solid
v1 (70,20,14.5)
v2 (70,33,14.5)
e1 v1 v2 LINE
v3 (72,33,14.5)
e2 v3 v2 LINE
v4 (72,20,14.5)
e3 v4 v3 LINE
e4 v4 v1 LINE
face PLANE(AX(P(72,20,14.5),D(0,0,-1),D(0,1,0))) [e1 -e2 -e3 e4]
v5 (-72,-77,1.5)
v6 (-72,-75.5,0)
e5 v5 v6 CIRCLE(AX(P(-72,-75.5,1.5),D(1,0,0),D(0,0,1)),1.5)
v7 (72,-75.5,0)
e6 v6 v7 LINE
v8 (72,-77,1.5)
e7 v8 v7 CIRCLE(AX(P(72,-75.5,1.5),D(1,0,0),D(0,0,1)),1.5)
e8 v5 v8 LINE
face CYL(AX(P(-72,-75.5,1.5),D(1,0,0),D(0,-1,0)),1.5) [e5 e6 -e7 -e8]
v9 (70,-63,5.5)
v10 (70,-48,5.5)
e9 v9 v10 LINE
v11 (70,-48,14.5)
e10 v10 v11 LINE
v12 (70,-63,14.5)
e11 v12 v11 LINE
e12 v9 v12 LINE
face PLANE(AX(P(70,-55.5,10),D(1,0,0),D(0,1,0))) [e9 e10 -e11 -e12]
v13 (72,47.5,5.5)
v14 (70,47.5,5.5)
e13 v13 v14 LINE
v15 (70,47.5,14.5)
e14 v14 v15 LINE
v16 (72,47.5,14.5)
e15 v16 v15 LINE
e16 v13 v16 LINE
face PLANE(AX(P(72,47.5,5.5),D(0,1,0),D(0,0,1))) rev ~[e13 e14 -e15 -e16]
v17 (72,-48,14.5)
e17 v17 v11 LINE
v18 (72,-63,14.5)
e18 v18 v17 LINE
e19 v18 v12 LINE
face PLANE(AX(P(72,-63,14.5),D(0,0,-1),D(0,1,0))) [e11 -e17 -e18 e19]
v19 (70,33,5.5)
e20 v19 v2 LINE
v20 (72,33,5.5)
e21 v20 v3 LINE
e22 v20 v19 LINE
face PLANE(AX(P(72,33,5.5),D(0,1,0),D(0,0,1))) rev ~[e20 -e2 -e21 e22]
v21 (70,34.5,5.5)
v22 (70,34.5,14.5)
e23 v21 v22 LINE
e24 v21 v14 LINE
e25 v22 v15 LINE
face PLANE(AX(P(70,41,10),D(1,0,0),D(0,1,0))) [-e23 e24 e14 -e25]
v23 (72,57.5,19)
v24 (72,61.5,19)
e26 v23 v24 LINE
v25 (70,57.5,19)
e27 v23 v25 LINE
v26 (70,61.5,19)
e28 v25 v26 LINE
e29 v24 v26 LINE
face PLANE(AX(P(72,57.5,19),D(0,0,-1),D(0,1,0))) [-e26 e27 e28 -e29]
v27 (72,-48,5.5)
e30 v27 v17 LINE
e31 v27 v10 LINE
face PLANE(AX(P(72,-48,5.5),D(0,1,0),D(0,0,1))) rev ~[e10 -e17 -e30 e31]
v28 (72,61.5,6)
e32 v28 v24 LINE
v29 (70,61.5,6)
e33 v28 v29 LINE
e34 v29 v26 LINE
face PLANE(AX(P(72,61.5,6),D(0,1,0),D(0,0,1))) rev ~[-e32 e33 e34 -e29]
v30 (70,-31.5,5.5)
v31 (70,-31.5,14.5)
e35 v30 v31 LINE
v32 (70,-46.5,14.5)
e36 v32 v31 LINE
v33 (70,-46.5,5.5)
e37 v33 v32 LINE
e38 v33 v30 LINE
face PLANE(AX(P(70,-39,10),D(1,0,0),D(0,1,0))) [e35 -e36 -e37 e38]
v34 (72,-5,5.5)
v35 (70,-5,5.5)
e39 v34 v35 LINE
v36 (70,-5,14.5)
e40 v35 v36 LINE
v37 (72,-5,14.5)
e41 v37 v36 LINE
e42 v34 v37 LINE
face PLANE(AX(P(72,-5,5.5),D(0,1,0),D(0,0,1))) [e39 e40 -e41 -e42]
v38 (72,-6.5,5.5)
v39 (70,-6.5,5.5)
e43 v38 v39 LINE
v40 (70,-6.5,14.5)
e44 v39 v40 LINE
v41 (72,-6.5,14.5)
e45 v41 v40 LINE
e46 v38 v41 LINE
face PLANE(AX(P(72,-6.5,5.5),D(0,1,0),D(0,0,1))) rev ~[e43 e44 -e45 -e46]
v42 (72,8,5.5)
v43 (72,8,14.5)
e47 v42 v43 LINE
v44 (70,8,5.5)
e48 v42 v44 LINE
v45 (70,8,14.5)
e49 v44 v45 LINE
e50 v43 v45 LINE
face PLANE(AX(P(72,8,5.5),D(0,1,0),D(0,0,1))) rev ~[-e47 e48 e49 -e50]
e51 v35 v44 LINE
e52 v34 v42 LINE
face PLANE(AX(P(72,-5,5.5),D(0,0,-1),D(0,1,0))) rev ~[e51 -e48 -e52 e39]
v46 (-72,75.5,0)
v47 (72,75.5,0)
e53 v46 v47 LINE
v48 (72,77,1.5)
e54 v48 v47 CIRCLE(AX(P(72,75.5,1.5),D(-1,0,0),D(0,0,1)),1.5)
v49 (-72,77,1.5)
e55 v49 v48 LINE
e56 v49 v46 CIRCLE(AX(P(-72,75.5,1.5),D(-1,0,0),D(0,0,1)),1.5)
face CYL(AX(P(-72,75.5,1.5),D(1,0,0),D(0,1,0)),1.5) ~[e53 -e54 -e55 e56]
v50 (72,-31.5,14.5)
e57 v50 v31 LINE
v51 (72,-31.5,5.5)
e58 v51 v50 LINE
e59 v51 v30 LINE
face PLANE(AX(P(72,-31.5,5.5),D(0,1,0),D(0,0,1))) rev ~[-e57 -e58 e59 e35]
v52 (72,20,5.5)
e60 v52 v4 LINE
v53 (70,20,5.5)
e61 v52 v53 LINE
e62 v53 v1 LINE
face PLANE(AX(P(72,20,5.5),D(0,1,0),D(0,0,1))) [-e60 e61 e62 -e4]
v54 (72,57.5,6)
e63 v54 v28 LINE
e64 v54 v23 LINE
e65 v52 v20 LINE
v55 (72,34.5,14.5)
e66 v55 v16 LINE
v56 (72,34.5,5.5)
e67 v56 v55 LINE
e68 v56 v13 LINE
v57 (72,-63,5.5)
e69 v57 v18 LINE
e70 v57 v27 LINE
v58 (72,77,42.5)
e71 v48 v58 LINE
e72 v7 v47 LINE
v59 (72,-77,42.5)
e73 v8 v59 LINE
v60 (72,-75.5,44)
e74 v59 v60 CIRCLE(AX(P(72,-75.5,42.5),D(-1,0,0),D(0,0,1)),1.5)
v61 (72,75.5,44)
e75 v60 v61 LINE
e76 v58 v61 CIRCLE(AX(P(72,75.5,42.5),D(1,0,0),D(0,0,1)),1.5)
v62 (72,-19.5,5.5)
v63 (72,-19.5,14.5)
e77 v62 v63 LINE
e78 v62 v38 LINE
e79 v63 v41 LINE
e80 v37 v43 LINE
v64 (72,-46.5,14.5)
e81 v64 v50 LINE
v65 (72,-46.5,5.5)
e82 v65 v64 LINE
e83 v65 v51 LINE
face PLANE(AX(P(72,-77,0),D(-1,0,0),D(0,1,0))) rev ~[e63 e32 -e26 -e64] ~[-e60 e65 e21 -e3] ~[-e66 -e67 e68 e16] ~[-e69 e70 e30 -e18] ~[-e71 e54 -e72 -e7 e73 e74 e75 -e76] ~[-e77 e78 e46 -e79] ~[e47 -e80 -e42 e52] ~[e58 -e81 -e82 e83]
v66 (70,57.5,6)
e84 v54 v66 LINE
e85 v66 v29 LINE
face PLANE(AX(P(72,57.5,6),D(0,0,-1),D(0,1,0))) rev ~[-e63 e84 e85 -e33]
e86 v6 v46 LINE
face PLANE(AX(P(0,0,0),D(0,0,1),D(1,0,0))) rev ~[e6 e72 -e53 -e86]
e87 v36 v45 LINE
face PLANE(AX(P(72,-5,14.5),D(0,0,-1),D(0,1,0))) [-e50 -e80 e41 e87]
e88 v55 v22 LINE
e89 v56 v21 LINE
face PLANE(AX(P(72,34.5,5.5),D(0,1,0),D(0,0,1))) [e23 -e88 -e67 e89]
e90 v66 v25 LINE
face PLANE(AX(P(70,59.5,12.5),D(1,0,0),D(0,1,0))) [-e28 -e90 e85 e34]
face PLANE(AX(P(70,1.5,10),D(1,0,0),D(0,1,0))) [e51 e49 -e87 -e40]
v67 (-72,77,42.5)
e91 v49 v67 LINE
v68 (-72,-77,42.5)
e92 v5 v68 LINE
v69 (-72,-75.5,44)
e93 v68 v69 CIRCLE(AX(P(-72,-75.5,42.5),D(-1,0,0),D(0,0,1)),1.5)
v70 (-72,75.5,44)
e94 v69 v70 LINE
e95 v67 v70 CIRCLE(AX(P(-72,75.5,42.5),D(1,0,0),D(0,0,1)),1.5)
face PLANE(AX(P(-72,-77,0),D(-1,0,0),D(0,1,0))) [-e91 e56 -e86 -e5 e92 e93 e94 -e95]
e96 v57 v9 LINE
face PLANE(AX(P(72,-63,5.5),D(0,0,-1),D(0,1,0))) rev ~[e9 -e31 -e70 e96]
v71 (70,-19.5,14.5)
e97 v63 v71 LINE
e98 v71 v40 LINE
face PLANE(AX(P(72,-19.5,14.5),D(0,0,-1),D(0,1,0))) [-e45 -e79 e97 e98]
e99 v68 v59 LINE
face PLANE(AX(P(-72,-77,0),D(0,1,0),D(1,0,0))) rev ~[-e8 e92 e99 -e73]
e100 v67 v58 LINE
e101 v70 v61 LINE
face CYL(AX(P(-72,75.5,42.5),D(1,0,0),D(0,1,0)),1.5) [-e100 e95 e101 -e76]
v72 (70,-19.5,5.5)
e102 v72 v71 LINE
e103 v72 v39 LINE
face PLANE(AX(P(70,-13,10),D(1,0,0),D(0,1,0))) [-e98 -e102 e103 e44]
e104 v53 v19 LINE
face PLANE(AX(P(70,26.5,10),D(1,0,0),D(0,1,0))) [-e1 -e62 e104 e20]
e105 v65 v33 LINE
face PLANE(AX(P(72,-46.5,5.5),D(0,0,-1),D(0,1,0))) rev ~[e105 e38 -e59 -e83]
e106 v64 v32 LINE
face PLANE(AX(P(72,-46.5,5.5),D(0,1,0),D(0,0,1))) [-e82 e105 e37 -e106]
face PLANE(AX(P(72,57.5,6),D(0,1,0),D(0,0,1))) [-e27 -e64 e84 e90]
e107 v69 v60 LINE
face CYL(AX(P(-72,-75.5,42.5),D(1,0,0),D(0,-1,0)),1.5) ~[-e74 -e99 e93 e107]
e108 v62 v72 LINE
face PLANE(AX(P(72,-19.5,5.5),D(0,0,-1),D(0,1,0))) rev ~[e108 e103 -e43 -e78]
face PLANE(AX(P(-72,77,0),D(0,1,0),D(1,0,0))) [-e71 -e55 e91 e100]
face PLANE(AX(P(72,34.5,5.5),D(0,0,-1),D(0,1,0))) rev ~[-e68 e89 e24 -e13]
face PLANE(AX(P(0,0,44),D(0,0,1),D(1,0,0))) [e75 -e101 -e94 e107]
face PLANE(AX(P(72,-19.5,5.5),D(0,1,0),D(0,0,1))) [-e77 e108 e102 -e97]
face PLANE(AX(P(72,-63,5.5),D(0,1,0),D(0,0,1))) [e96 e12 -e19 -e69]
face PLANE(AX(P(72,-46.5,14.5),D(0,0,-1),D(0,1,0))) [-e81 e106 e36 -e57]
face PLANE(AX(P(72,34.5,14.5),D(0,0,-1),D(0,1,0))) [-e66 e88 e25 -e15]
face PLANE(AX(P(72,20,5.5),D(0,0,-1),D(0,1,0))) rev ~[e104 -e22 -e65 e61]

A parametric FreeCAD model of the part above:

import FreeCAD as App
import Part
import Sketcher

V = App.Vector
Q = App.Units.Quantity


def edges_at(feature, points):
    """Names of the edges that pass closest to the given points."""
    edges = feature.Shape.Edges
    near = lambda p: min(range(len(edges)), key=lambda i: edges[i].distToShape(Part.Vertex(*p))[0])
    return sorted({f"Edge{near(p) + 1}" for p in points})

doc = App.newDocument("Part")
body = doc.addObject("PartDesign::Body", "Body")

sketch1 = doc.addObject("Sketcher::SketchObject", "Sketch")
body.addObject(sketch1)
sketch1.AttachmentSupport = (doc.XY_Plane, [""])
sketch1.MapMode = "FlatFace"
sketch1.addGeometry([
    Part.LineSegment(V(-72, 77, 0), V(-72, -77, 0)),
    Part.LineSegment(V(-72, -77, 0), V(72, -77, 0)),
    Part.LineSegment(V(72, -77, 0), V(72, 77, 0)),
    Part.LineSegment(V(72, 77, 0), V(-72, 77, 0)),
], False)
sketch1.addConstraint([
    Sketcher.Constraint("Coincident", 0, 2, 1, 1),
    Sketcher.Constraint("Coincident", 1, 2, 2, 1),
    Sketcher.Constraint("Coincident", 2, 2, 3, 1),
    Sketcher.Constraint("Coincident", 3, 2, 0, 1),
    Sketcher.Constraint("Vertical", 0),
    Sketcher.Constraint("Horizontal", 1),
    Sketcher.Constraint("Vertical", 2),
    Sketcher.Constraint("Horizontal", 3),
    Sketcher.Constraint("Symmetric", 0, 2, 2, 2, -1, 1),
    Sketcher.Constraint("DistanceX", 1, 1, 1, 2, Q("144 mm")),
    Sketcher.Constraint("DistanceY", 0, 2, 0, 1, Q("154 mm")),
])
pad1 = doc.addObject("PartDesign::Pad", "Pad")
body.addObject(pad1)
pad1.Profile = sketch1
pad1.Length = 44

sketch2 = doc.addObject("Sketcher::SketchObject", "Sketch001")
body.addObject(sketch2)
sketch2.AttachmentSupport = (doc.YZ_Plane, [""])
sketch2.MapMode = "FlatFace"
sketch2.AttachmentOffset = App.Placement(V(0, 0, 72), App.Rotation())
sketch2.addGeometry([
    Part.LineSegment(V(-63, 14.5, 0), V(-63, 5.5, 0)),
    Part.LineSegment(V(-63, 5.5, 0), V(-48, 5.5, 0)),
    Part.LineSegment(V(-48, 5.5, 0), V(-48, 14.5, 0)),
    Part.LineSegment(V(-48, 14.5, 0), V(-63, 14.5, 0)),
    Part.LineSegment(V(-46.5, 14.5, 0), V(-46.5, 5.5, 0)),
    Part.LineSegment(V(-46.5, 5.5, 0), V(-31.5, 5.5, 0)),
    Part.LineSegment(V(-31.5, 5.5, 0), V(-31.5, 14.5, 0)),
    Part.LineSegment(V(-31.5, 14.5, 0), V(-46.5, 14.5, 0)),
    Part.LineSegment(V(-19.5, 14.5, 0), V(-19.5, 5.5, 0)),
    Part.LineSegment(V(-19.5, 5.5, 0), V(-6.5, 5.5, 0)),
    Part.LineSegment(V(-6.5, 5.5, 0), V(-6.5, 14.5, 0)),
    Part.LineSegment(V(-6.5, 14.5, 0), V(-19.5, 14.5, 0)),
    Part.LineSegment(V(-5, 14.5, 0), V(-5, 5.5, 0)),
    Part.LineSegment(V(-5, 5.5, 0), V(8, 5.5, 0)),
    Part.LineSegment(V(8, 5.5, 0), V(8, 14.5, 0)),
    Part.LineSegment(V(8, 14.5, 0), V(-5, 14.5, 0)),
    Part.LineSegment(V(20, 14.5, 0), V(20, 5.5, 0)),
    Part.LineSegment(V(20, 5.5, 0), V(33, 5.5, 0)),
    Part.LineSegment(V(33, 5.5, 0), V(33, 14.5, 0)),
    Part.LineSegment(V(33, 14.5, 0), V(20, 14.5, 0)),
    Part.LineSegment(V(34.5, 14.5, 0), V(34.5, 5.5, 0)),
    Part.LineSegment(V(34.5, 5.5, 0), V(47.5, 5.5, 0)),
    Part.LineSegment(V(47.5, 5.5, 0), V(47.5, 14.5, 0)),
    Part.LineSegment(V(47.5, 14.5, 0), V(34.5, 14.5, 0)),
    Part.LineSegment(V(57.5, 19, 0), V(57.5, 6, 0)),
    Part.LineSegment(V(57.5, 6, 0), V(61.5, 6, 0)),
    Part.LineSegment(V(61.5, 6, 0), V(61.5, 19, 0)),
    Part.LineSegment(V(61.5, 19, 0), V(57.5, 19, 0)),
], False)
sketch2.addConstraint([
    Sketcher.Constraint("Coincident", 0, 2, 1, 1),
    Sketcher.Constraint("Coincident", 1, 2, 2, 1),
    Sketcher.Constraint("Coincident", 2, 2, 3, 1),
    Sketcher.Constraint("Coincident", 3, 2, 0, 1),
    Sketcher.Constraint("Coincident", 4, 2, 5, 1),
    Sketcher.Constraint("Coincident", 5, 2, 6, 1),
    Sketcher.Constraint("Coincident", 6, 2, 7, 1),
    Sketcher.Constraint("Coincident", 7, 2, 4, 1),
    Sketcher.Constraint("Coincident", 8, 2, 9, 1),
    Sketcher.Constraint("Coincident", 9, 2, 10, 1),
    Sketcher.Constraint("Coincident", 10, 2, 11, 1),
    Sketcher.Constraint("Coincident", 11, 2, 8, 1),
    Sketcher.Constraint("Coincident", 12, 2, 13, 1),
    Sketcher.Constraint("Coincident", 13, 2, 14, 1),
    Sketcher.Constraint("Coincident", 14, 2, 15, 1),
    Sketcher.Constraint("Coincident", 15, 2, 12, 1),
    Sketcher.Constraint("Coincident", 16, 2, 17, 1),
    Sketcher.Constraint("Coincident", 17, 2, 18, 1),
    Sketcher.Constraint("Coincident", 18, 2, 19, 1),
    Sketcher.Constraint("Coincident", 19, 2, 16, 1),
    Sketcher.Constraint("Coincident", 20, 2, 21, 1),
    Sketcher.Constraint("Coincident", 21, 2, 22, 1),
    Sketcher.Constraint("Coincident", 22, 2, 23, 1),
    Sketcher.Constraint("Coincident", 23, 2, 20, 1),
    Sketcher.Constraint("Coincident", 24, 2, 25, 1),
    Sketcher.Constraint("Coincident", 25, 2, 26, 1),
    Sketcher.Constraint("Coincident", 26, 2, 27, 1),
    Sketcher.Constraint("Coincident", 27, 2, 24, 1),
    Sketcher.Constraint("Vertical", 0),
    Sketcher.Constraint("Horizontal", 1),
    Sketcher.Constraint("Vertical", 2),
    Sketcher.Constraint("Horizontal", 3),
    Sketcher.Constraint("Vertical", 4),
    Sketcher.Constraint("Horizontal", 5),
    Sketcher.Constraint("Vertical", 6),
    Sketcher.Constraint("Horizontal", 7),
    Sketcher.Constraint("Vertical", 8),
    Sketcher.Constraint("Horizontal", 9),
    Sketcher.Constraint("Vertical", 10),
    Sketcher.Constraint("Horizontal", 11),
    Sketcher.Constraint("Vertical", 12),
    Sketcher.Constraint("Horizontal", 13),
    Sketcher.Constraint("Vertical", 14),
    Sketcher.Constraint("Horizontal", 15),
    Sketcher.Constraint("Vertical", 16),
    Sketcher.Constraint("Horizontal", 17),
    Sketcher.Constraint("Vertical", 18),
    Sketcher.Constraint("Horizontal", 19),
    Sketcher.Constraint("Vertical", 20),
    Sketcher.Constraint("Horizontal", 21),
    Sketcher.Constraint("Vertical", 22),
    Sketcher.Constraint("Horizontal", 23),
    Sketcher.Constraint("Vertical", 24),
    Sketcher.Constraint("Horizontal", 25),
    Sketcher.Constraint("Vertical", 26),
    Sketcher.Constraint("Horizontal", 27),
    Sketcher.Constraint("Horizontal", 1, 2, 4, 2),
    Sketcher.Constraint("Horizontal", 3, 2, 6, 2),
    Sketcher.Constraint("Horizontal", 5, 2, 8, 2),
    Sketcher.Constraint("Horizontal", 7, 2, 10, 2),
    Sketcher.Constraint("Horizontal", 9, 2, 12, 2),
    Sketcher.Constraint("Horizontal", 11, 2, 14, 2),
    Sketcher.Constraint("Horizontal", 13, 2, 16, 2),
    Sketcher.Constraint("Horizontal", 15, 2, 18, 2),
    Sketcher.Constraint("Horizontal", 17, 2, 20, 2),
    Sketcher.Constraint("Horizontal", 19, 2, 22, 2),
    Sketcher.Constraint("Equal", 3, 5),
    Sketcher.Constraint("Equal", 11, 13),
    Sketcher.Constraint("Equal", 15, 17),
    Sketcher.Constraint("Equal", 19, 21),
    Sketcher.Constraint("Equal", 23, 24),
    Sketcher.Constraint("DistanceX", 1, 1, 1, 2, Q("15 mm")),
    Sketcher.Constraint("DistanceX", 9, 1, 9, 2, Q("13 mm")),
    Sketcher.Constraint("DistanceX", 25, 1, 25, 2, Q("4 mm")),
    Sketcher.Constraint("DistanceY", 0, 2, 0, 1, Q("9 mm")),
    Sketcher.Constraint("DistanceX", 0, 2, -1, 1, Q("63 mm")),
    Sketcher.Constraint("DistanceX", 12, 2, -1, 1, Q("5 mm")),
    Sketcher.Constraint("DistanceX", -1, 1, 16, 2, Q("20 mm")),
    Sketcher.Constraint("DistanceY", -1, 1, 24, 2, Q("6 mm")),
    Sketcher.Constraint("DistanceX", 5, 2, 8, 2, Q("12 mm")),
    Sketcher.Constraint("DistanceX", 21, 2, 24, 2, Q("10 mm")),
    Sketcher.Constraint("DistanceY", -1, 1, 0, 2, Q("5.5 mm")),
    Sketcher.Constraint("DistanceX", 4, 2, -1, 1, Q("46.5 mm")),
    Sketcher.Constraint("DistanceX", -1, 1, 20, 2, Q("34.5 mm")),
])
pocket1 = doc.addObject("PartDesign::Pocket", "Pocket")
body.addObject(pocket1)
pocket1.Profile = sketch2
pocket1.Length = 2
doc.recompute()

fillet = doc.addObject("PartDesign::Fillet", "Fillet")
body.addObject(fillet)
fillet.Base = (pocket1, edges_at(pocket1, [
    (0, -77, 44),
    (0, 77, 44),
    (0, -77, 0),
    (0, 77, 0),
]))
fillet.Radius = 1.5

doc.recompute()
